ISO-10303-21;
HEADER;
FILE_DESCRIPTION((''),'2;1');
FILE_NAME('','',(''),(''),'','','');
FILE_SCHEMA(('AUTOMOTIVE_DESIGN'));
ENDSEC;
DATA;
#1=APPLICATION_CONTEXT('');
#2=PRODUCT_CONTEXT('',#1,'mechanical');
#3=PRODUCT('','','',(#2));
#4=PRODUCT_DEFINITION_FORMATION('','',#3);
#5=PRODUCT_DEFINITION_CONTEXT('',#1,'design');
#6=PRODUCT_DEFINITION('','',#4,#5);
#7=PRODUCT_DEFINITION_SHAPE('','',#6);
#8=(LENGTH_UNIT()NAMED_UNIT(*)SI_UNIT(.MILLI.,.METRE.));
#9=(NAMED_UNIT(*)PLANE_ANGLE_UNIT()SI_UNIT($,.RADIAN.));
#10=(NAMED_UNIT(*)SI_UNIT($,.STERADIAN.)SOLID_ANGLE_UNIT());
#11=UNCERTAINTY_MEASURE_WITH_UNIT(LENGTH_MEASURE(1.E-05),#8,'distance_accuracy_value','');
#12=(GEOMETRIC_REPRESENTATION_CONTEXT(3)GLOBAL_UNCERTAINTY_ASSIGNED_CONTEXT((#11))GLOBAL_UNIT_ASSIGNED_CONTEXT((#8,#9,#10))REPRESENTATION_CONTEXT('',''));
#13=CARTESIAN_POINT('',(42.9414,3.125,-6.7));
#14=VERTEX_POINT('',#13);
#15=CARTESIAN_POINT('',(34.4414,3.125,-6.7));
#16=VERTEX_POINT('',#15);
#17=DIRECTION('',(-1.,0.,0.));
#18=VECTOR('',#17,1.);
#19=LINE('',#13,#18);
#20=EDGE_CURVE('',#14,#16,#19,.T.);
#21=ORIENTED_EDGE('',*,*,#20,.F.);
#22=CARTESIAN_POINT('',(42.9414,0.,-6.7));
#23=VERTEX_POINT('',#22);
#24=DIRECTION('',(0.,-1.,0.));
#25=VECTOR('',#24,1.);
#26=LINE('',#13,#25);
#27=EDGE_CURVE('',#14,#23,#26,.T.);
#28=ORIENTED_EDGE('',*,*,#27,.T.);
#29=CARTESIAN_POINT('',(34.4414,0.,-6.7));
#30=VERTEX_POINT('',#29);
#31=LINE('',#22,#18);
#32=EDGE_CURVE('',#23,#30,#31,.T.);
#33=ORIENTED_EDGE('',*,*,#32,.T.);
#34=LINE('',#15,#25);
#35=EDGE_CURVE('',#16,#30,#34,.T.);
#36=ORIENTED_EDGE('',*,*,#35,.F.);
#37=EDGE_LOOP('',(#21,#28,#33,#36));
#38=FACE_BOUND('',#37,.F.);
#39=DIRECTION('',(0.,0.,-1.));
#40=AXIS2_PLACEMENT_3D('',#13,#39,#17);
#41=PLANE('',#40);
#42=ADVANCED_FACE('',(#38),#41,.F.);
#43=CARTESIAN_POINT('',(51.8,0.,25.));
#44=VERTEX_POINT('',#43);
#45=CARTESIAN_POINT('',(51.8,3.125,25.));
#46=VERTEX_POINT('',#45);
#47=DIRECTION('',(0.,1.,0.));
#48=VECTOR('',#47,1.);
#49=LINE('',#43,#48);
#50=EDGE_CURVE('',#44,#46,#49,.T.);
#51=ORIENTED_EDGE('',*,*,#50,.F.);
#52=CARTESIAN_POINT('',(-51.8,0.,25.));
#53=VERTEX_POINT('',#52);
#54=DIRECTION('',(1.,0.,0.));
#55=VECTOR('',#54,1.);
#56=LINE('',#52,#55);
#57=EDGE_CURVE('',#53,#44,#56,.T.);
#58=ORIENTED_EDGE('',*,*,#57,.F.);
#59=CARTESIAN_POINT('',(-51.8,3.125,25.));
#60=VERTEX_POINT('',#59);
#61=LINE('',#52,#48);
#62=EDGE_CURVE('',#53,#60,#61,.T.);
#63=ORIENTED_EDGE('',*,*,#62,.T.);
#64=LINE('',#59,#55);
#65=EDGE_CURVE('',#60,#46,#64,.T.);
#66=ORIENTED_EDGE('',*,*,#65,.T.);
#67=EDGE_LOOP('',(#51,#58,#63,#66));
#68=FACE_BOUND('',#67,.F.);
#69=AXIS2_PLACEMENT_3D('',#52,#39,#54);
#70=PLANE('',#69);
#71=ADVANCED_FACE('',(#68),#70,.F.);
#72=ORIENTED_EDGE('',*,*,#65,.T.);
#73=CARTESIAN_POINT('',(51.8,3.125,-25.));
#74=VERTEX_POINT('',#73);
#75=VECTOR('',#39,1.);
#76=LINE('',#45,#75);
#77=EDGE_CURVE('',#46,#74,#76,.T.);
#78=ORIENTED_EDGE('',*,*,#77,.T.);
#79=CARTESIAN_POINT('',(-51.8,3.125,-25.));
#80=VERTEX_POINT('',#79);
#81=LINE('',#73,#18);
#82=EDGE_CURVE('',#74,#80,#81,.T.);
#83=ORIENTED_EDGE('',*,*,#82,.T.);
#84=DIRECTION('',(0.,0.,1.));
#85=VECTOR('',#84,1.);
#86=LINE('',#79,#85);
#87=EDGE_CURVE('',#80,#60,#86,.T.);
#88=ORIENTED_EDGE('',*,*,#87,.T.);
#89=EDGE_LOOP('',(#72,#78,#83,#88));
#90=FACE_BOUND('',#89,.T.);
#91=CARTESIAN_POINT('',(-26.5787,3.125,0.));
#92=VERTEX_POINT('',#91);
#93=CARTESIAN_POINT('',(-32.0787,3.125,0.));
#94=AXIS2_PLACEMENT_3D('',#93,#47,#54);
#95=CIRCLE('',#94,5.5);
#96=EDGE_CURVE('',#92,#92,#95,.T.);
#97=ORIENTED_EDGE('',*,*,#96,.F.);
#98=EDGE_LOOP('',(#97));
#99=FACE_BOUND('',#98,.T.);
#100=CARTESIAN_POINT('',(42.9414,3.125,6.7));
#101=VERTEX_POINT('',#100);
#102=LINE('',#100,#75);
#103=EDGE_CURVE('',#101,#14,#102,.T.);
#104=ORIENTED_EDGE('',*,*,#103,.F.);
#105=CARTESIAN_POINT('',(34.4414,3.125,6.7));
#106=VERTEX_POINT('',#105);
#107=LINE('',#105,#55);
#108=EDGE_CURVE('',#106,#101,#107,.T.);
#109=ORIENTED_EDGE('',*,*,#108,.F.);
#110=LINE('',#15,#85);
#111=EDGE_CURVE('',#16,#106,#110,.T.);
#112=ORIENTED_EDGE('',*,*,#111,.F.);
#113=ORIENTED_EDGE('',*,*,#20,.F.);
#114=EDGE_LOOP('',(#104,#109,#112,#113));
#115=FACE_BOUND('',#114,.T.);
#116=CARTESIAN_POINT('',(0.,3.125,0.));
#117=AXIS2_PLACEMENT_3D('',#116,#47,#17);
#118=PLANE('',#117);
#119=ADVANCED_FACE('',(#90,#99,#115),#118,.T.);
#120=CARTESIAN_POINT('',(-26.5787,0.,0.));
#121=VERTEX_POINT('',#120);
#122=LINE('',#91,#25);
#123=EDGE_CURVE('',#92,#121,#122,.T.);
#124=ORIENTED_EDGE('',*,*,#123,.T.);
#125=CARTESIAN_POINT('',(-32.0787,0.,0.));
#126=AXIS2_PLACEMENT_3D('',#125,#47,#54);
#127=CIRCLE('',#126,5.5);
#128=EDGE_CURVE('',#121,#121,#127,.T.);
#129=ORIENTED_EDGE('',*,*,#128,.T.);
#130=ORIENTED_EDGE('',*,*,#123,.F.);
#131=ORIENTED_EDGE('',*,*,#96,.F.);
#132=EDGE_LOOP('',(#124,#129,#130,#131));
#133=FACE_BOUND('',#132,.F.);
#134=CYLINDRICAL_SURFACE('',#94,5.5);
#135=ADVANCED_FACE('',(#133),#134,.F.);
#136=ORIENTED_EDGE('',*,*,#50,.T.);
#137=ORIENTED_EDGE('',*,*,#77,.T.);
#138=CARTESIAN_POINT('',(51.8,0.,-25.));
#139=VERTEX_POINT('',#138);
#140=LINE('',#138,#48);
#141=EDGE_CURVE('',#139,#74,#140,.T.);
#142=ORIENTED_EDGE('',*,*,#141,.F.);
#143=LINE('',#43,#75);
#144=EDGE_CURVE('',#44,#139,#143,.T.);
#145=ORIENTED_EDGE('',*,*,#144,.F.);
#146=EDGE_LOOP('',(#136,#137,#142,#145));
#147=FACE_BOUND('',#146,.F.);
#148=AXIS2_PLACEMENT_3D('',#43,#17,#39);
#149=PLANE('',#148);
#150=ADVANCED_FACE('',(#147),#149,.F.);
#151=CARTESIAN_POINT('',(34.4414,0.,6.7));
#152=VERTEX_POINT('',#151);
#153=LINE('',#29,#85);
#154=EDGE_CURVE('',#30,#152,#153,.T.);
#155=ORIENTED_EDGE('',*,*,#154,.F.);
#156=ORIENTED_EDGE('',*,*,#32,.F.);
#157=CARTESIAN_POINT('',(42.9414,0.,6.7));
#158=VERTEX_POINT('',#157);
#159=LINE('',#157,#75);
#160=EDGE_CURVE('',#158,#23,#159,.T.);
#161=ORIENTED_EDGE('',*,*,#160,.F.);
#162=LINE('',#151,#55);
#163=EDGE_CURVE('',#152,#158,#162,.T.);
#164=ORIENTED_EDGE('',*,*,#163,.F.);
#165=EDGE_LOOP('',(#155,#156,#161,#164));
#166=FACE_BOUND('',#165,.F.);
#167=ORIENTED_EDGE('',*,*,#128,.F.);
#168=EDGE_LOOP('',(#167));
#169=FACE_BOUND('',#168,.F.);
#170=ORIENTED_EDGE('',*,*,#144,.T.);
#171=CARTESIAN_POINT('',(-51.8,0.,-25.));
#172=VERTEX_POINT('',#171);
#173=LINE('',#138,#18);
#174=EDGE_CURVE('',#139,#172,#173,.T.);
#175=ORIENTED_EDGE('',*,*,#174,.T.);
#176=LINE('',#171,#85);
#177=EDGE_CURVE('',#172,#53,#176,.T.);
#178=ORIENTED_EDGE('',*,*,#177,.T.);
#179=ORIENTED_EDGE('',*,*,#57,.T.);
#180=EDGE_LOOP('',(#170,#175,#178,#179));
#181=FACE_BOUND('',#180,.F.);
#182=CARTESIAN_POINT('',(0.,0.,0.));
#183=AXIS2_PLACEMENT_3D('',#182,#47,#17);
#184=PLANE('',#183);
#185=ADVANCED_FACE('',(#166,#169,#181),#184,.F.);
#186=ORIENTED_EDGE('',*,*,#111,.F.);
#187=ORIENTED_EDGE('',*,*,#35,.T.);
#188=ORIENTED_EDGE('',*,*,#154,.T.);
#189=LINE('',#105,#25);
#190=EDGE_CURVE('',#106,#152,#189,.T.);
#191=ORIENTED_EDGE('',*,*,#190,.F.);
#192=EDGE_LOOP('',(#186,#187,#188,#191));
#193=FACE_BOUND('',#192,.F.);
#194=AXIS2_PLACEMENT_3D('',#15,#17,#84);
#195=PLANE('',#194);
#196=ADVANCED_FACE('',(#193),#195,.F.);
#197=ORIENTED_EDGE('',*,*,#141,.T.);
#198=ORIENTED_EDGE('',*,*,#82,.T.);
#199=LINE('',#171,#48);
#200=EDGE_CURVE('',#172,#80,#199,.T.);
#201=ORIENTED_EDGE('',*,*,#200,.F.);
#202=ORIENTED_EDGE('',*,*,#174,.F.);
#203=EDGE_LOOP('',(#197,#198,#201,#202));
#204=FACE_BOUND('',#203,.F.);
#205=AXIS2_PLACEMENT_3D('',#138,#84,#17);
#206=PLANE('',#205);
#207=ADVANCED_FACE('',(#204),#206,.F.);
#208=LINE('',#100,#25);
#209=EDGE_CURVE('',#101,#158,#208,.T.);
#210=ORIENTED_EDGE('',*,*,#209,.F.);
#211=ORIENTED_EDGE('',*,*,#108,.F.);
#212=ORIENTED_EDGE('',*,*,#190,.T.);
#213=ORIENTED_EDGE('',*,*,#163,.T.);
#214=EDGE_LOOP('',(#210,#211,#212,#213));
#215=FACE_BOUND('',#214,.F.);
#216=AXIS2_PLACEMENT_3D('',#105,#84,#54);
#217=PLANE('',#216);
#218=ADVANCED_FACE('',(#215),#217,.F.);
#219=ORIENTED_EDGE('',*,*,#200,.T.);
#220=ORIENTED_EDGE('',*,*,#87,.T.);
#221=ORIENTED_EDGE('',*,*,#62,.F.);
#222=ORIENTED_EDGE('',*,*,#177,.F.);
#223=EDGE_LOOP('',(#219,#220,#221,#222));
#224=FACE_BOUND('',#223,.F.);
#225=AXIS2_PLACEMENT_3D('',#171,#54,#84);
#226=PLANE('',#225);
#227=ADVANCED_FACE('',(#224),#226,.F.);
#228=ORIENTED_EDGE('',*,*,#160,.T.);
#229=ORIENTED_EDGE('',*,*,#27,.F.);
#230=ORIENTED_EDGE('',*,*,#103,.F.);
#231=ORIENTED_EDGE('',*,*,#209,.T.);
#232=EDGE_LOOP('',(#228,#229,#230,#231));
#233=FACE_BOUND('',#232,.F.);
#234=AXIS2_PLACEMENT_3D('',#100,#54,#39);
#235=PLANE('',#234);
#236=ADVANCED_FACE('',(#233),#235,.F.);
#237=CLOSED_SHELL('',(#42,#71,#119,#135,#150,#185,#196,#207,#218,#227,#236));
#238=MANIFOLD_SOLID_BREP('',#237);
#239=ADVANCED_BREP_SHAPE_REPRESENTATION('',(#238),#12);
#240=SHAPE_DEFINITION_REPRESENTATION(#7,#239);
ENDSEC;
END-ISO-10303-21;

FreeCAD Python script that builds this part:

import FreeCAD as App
import Part
import Sketcher
Q = App.Units.Quantity

doc = App.newDocument("Part")
body = doc.addObject("PartDesign::Body", "Body")

# Sketch on XZ plane
sketch1 = body.newObject("Sketcher::SketchObject", "Sketch")
sketch1.AttachmentSupport = (doc.getObject("XZ_Plane"), [""])
sketch1.MapMode = "FlatFace"
sketch1.addGeometry([
    Part.LineSegment(App.Vector(-52, -25, 0), App.Vector(-52, 25, 0)),
    Part.LineSegment(App.Vector(-52, 25, 0), App.Vector(52, 25, 0)),
    Part.LineSegment(App.Vector(52, 25, 0), App.Vector(52, -25, 0)),
    Part.LineSegment(App.Vector(52, -25, 0), App.Vector(-52, -25, 0)),
], False)
sketch1.addConstraint([
    Sketcher.Constraint("Coincident", 0, 2, 1, 1),
    Sketcher.Constraint("Coincident", 1, 2, 2, 1),
    Sketcher.Constraint("Coincident", 2, 2, 3, 1),
    Sketcher.Constraint("Coincident", 3, 2, 0, 1),
    Sketcher.Constraint("Vertical", 0),
    Sketcher.Constraint("Horizontal", 1),
    Sketcher.Constraint("Vertical", 2),
    Sketcher.Constraint("Horizontal", 3),
    Sketcher.Constraint("Symmetric", 0, 2, 2, 2, -1, 1),
    Sketcher.Constraint("DistanceY", 0, 1, 0, 2, Q("50 mm")),
    Sketcher.Constraint("DistanceX", 1, 1, 1, 2, Q("103.6 mm")),
])
pad1 = body.newObject("PartDesign::Pad", "Pad")
pad1.Profile = sketch1
pad1.Length = 3.125
pad1.Reversed = True

# Sketch on XZ plane
sketch2 = body.newObject("Sketcher::SketchObject", "Sketch001")
sketch2.AttachmentSupport = (doc.getObject("XZ_Plane"), [""])
sketch2.MapMode = "FlatFace"
sketch2.AttachmentOffset = App.Placement(App.Vector(0, 0, -3.125), App.Rotation())
sketch2.addGeometry(Part.Circle(App.Vector(-32, 0, 0), App.Vector(0, 0, 1), 6), False)
sketch2.addConstraint([
    Sketcher.Constraint("PointOnObject", 0, 3, -1),
    Sketcher.Constraint("Diameter", 0, Q("11 mm")),
    Sketcher.Constraint("DistanceX", 0, 3, -1, 1, Q("32.0787 mm")),
])
pocket1 = body.newObject("PartDesign::Pocket", "Pocket")
pocket1.Profile = sketch2
pocket1.Length = 3.125
pocket1.Reversed = True

# Sketch on XZ plane
sketch3 = body.newObject("Sketcher::SketchObject", "Sketch002")
sketch3.AttachmentSupport = (doc.getObject("XZ_Plane"), [""])
sketch3.MapMode = "FlatFace"
sketch3.AttachmentOffset = App.Placement(App.Vector(0, 0, -3.125), App.Rotation())
sketch3.addGeometry([
    Part.LineSegment(App.Vector(34, -7, 0), App.Vector(34, 7, 0)),
    Part.LineSegment(App.Vector(34, 7, 0), App.Vector(43, 7, 0)),
    Part.LineSegment(App.Vector(43, 7, 0), App.Vector(43, -7, 0)),
    Part.LineSegment(App.Vector(43, -7, 0), App.Vector(34, -7, 0)),
], False)
sketch3.addConstraint([
    Sketcher.Constraint("Coincident", 0, 2, 1, 1),
    Sketcher.Constraint("Coincident", 1, 2, 2, 1),
    Sketcher.Constraint("Coincident", 2, 2, 3, 1),
    Sketcher.Constraint("Coincident", 3, 2, 0, 1),
    Sketcher.Constraint("Vertical", 0),
    Sketcher.Constraint("Horizontal", 1),
    Sketcher.Constraint("Vertical", 2),
    Sketcher.Constraint("Horizontal", 3),
    Sketcher.Constraint("DistanceX", 1, 1, 1, 2, Q("8.5 mm")),
    Sketcher.Constraint("DistanceY", 0, 1, 0, 2, Q("13.4 mm")),
    Sketcher.Constraint("DistanceY", -1, 1, 0, 2, Q("6.7 mm")),
    Sketcher.Constraint("DistanceX", -1, 1, 0, 2, Q("34.4414 mm")),
])
pocket2 = body.newObject("PartDesign::Pocket", "Pocket001")
pocket2.Profile = sketch3
pocket2.Length = 3.125
pocket2.Reversed = True

doc.recompute()
